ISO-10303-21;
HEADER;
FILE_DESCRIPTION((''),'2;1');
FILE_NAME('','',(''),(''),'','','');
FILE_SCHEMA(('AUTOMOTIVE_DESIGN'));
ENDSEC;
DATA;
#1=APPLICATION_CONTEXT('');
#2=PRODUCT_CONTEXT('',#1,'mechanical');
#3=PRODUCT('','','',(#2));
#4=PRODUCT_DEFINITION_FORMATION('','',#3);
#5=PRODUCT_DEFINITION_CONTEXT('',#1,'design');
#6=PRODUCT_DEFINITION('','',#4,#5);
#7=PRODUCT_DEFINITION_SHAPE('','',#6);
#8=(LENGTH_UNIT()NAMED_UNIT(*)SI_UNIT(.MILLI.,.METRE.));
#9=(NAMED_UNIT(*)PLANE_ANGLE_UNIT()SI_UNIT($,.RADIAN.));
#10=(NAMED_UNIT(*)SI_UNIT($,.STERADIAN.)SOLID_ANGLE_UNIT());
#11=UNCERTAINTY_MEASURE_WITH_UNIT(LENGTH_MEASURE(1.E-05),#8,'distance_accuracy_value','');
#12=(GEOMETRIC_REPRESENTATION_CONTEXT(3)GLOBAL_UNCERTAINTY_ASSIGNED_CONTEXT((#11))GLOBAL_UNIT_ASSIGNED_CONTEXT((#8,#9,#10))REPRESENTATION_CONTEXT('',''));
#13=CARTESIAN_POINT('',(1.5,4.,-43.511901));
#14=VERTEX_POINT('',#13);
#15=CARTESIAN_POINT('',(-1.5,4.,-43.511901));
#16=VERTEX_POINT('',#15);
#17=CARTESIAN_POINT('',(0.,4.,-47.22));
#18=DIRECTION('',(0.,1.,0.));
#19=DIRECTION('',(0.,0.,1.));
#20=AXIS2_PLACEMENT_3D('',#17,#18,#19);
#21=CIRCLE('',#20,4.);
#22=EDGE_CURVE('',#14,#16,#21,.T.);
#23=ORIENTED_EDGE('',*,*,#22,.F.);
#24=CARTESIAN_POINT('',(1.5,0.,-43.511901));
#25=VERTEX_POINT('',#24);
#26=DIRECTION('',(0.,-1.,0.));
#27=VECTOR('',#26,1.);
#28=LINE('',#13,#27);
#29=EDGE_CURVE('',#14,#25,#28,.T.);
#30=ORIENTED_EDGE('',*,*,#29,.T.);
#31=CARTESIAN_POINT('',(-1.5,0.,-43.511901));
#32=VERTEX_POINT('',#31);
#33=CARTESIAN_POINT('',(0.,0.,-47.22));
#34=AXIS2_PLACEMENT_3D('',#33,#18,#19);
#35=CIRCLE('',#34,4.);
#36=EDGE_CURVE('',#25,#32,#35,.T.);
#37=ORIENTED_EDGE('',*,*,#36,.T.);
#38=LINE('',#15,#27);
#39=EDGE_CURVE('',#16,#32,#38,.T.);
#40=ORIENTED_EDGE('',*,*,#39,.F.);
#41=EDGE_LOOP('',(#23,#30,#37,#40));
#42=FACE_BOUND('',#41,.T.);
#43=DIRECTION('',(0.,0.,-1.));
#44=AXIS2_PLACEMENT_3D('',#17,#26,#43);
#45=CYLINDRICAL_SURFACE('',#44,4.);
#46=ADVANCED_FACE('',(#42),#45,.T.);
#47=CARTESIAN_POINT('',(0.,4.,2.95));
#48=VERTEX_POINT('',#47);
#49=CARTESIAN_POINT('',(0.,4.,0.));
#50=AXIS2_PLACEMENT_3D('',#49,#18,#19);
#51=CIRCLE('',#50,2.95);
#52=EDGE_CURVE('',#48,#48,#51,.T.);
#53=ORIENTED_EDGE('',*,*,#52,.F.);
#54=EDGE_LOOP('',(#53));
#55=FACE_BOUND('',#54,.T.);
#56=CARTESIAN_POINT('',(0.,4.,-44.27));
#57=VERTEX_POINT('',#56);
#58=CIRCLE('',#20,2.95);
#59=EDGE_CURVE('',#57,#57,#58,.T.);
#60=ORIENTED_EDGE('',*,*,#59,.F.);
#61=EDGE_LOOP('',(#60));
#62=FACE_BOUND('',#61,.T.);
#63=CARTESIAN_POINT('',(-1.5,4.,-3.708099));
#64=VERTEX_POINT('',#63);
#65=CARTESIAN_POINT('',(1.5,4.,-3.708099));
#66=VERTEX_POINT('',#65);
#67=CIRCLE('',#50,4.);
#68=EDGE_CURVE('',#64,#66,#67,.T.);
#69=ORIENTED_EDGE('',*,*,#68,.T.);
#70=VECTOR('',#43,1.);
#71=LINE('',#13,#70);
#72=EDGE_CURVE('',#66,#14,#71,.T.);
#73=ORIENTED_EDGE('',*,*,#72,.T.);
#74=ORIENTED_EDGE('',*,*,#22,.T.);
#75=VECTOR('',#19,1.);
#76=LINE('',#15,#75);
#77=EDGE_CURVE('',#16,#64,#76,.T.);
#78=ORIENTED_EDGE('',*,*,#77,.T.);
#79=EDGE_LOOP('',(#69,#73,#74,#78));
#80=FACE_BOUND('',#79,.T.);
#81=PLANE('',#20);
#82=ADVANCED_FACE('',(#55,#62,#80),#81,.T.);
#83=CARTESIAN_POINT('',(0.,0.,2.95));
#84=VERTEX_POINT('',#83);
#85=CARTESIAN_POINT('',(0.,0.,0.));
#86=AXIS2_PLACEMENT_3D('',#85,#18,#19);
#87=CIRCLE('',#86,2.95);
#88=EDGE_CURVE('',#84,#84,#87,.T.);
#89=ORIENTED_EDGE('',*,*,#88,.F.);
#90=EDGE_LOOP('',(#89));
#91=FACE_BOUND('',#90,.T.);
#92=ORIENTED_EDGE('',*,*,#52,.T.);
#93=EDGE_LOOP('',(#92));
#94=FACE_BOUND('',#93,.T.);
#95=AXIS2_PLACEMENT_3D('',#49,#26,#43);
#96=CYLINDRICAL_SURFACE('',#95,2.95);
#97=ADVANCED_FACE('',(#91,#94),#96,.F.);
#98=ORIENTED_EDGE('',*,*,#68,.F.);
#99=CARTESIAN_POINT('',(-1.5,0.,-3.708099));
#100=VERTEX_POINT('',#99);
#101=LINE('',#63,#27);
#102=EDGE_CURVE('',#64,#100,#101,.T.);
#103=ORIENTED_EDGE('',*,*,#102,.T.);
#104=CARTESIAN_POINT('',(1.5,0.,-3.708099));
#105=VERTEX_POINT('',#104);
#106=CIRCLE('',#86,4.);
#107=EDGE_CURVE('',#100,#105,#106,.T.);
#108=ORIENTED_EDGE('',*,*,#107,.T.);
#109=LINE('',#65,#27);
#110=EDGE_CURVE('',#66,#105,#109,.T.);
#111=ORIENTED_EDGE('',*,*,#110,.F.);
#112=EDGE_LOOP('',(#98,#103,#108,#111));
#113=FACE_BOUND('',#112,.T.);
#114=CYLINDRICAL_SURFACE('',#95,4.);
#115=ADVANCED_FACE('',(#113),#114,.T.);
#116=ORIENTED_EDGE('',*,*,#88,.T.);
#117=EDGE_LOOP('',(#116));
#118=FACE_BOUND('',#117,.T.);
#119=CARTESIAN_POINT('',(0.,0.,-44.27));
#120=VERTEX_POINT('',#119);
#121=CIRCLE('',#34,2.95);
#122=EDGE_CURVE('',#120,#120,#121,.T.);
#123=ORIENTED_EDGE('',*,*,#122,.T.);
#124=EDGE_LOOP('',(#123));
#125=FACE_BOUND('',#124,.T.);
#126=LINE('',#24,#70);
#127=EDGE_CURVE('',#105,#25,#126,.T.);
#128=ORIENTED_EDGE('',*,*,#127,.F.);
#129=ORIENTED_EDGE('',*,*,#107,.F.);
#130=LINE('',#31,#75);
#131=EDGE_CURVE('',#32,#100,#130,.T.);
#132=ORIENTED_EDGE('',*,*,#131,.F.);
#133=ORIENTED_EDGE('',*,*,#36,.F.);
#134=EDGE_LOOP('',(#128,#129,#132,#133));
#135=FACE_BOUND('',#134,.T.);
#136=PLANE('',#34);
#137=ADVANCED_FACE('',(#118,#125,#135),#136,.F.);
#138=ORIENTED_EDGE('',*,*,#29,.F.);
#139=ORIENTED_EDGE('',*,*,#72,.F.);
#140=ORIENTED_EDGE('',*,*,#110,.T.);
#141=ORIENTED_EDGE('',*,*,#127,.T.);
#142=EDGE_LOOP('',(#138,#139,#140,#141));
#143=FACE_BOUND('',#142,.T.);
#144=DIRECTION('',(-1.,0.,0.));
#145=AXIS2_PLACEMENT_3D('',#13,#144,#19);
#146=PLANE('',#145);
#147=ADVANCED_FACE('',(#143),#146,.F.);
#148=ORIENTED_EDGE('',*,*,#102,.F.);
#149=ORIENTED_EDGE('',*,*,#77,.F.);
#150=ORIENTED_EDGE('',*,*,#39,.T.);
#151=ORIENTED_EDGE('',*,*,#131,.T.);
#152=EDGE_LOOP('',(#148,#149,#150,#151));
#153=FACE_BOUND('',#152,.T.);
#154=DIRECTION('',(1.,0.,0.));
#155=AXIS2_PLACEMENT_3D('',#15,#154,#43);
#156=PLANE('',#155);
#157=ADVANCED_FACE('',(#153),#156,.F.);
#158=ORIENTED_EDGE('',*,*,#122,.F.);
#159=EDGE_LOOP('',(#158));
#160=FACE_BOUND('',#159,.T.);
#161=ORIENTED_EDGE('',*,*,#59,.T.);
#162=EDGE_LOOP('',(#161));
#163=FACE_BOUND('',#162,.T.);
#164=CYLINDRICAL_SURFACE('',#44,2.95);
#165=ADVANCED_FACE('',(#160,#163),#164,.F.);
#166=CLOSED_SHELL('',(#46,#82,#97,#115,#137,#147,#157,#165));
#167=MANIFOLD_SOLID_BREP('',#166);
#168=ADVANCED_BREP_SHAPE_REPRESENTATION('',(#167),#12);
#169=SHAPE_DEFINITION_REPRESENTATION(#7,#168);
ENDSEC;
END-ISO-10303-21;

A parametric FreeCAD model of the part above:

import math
import FreeCAD as App
import Part
import Sketcher

V = App.Vector

doc = App.newDocument("Part")
body = doc.addObject("PartDesign::Body", "Body")

# Sketch on XZ plane
sketch1 = body.newObject("Sketcher::SketchObject", "Sketch")
sketch1.AttachmentSupport = (doc.getObject("XZ_Plane"), [""])
sketch1.MapMode = "FlatFace"
sketch1.addGeometry(Part.LineSegment(V(-1.5, -43.511901, 0), V(-1.5, -3.708099, 0)), False)
sketch1.addGeometry(Part.ArcOfCircle(Part.Circle(V(0, 0, 0), V(0, 0, 1), 4), math.radians(-67.975687), math.radians(247.975687)), False)
sketch1.addGeometry(Part.LineSegment(V(1.5, -3.708099, 0), V(1.5, -43.511901, 0)), False)
sketch1.addGeometry(Part.ArcOfCircle(Part.Circle(V(0, -47.22, 0), V(0, 0, 1), 4), math.radians(112.024313), math.radians(427.975687)), False)
sketch1.addGeometry(Part.Circle(V(0, 0, 0), V(0, 0, 1), 2.95), False)
sketch1.addGeometry(Part.Circle(V(0, -47.22, 0), V(0, 0, 1), 2.95), False)
sketch1.addConstraint(Sketcher.Constraint("Coincident", 0, 2, 1, 2))
sketch1.addConstraint(Sketcher.Constraint("Coincident", 1, 1, 2, 1))
sketch1.addConstraint(Sketcher.Constraint("Coincident", 2, 2, 3, 2))
sketch1.addConstraint(Sketcher.Constraint("Coincident", 3, 1, 0, 1))
sketch1.addConstraint(Sketcher.Constraint("Vertical", 0))
sketch1.addConstraint(Sketcher.Constraint("Vertical", 2))
sketch1.addConstraint(Sketcher.Constraint("Coincident", 1, 3, -1, 1))
sketch1.addConstraint(Sketcher.Constraint("Coincident", 4, 3, -1, 1))
sketch1.addConstraint(Sketcher.Constraint("Coincident", 5, 3, 3, 3))
sketch1.addConstraint(Sketcher.Constraint("Equal", 1, 3))
sketch1.addConstraint(Sketcher.Constraint("Equal", 4, 5))
sketch1.addConstraint(Sketcher.Constraint("Symmetric", 2, 2, 3, 1, -2))
sketch1.addConstraint(Sketcher.Constraint("Radius", 1, 4.0))
sketch1.addConstraint(Sketcher.Constraint("Diameter", 4, 5.9))
sketch1.addConstraint(Sketcher.Constraint("DistanceX", 0, 2, 1, 1, 3.0))
sketch1.addConstraint(Sketcher.Constraint("DistanceY", 3, 3, -1, 1, 47.22))
pad1 = body.newObject("PartDesign::Pad", "Pad")
pad1.Profile = sketch1
pad1.Length = 4
pad1.Reversed = True

doc.recompute()
